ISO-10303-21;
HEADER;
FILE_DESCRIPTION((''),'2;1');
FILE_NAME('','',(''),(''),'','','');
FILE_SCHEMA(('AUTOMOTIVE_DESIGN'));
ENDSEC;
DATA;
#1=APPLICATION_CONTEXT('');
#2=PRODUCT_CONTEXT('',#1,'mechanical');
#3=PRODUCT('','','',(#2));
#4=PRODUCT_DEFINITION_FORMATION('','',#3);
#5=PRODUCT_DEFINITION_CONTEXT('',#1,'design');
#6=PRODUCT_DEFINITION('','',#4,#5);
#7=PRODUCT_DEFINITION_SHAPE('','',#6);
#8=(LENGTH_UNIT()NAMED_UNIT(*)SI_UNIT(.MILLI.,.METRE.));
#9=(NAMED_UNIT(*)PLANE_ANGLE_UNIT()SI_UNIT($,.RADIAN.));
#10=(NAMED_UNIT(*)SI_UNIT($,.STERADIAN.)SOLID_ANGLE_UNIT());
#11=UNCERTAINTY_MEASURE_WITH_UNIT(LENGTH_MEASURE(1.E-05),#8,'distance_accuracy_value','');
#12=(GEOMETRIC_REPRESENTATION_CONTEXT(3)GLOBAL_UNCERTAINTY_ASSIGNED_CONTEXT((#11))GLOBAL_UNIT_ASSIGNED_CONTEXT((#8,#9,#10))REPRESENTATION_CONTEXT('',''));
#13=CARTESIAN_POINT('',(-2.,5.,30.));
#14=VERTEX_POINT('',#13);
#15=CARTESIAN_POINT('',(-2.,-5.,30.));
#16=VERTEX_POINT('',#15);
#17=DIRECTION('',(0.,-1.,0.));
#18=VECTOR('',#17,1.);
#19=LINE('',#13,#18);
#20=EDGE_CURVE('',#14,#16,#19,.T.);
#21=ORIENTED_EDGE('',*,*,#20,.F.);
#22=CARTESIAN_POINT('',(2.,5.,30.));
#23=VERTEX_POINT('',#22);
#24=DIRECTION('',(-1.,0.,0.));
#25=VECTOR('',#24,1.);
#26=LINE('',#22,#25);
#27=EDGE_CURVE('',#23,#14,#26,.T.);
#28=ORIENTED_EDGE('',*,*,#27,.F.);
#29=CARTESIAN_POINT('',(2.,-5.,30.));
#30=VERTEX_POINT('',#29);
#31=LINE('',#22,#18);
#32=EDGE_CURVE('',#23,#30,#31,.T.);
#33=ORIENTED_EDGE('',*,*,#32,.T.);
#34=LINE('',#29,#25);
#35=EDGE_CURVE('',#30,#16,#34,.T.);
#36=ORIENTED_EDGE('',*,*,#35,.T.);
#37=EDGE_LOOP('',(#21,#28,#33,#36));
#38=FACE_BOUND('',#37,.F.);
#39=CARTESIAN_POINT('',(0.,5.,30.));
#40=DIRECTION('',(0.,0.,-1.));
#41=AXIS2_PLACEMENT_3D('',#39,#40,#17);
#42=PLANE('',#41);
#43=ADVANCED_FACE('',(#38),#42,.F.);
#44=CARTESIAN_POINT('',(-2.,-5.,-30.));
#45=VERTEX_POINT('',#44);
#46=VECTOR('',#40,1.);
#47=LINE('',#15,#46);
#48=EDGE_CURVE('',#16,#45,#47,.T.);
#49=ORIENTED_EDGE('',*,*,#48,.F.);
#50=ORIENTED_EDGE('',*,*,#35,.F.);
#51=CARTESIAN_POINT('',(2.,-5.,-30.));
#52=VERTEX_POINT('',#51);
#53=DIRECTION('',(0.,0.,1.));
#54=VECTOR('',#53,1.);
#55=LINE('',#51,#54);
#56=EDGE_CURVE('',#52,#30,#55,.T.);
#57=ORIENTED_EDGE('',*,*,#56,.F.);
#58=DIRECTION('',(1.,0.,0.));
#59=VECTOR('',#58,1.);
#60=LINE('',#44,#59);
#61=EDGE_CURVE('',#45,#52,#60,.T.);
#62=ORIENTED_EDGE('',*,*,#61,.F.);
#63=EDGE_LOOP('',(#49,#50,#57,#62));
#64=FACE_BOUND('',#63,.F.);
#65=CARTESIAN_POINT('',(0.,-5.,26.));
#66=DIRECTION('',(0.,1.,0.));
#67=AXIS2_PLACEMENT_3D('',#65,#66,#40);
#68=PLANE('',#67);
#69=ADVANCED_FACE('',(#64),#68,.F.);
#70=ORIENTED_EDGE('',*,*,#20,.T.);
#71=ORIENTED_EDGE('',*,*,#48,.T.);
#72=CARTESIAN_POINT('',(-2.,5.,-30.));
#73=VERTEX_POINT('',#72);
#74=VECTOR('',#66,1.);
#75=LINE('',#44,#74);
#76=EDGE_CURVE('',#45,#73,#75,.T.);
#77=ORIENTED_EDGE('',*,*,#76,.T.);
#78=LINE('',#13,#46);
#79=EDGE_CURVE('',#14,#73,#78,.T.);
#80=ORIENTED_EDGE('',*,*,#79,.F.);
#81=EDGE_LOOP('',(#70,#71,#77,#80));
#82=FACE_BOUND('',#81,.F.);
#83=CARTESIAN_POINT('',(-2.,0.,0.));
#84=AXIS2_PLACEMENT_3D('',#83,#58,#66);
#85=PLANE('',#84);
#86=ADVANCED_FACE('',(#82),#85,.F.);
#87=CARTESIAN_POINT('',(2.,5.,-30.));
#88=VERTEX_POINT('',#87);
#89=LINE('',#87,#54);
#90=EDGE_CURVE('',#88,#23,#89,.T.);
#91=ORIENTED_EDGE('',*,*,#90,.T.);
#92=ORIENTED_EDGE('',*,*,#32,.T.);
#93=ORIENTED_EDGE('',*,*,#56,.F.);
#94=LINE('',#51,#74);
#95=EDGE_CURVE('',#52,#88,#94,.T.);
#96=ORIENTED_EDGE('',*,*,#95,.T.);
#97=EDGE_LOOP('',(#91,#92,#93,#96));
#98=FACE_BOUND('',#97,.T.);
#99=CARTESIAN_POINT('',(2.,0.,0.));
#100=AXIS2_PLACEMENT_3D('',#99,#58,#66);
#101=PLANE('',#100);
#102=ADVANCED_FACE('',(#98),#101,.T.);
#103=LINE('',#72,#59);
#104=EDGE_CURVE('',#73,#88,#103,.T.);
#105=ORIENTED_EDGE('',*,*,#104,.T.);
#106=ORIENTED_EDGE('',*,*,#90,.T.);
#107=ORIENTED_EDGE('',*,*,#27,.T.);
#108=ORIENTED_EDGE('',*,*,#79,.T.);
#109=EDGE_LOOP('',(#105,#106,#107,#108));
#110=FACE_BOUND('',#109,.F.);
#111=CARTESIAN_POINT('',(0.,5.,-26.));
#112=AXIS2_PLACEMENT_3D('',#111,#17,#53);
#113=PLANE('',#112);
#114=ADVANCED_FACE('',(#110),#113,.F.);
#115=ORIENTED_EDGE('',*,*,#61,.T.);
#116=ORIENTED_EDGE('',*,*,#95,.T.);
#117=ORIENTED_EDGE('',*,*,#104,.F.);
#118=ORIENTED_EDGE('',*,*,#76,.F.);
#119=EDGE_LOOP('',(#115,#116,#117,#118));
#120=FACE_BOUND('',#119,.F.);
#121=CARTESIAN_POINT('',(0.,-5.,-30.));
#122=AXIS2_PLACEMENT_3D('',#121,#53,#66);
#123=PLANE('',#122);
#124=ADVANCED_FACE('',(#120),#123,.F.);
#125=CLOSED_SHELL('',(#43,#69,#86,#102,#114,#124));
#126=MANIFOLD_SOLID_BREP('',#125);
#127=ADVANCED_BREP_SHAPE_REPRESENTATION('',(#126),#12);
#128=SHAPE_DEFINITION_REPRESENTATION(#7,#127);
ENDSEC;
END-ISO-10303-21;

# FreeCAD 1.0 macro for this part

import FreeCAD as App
import Part
import Sketcher
from FreeCAD import Vector
Q = App.Units.Quantity


def add_polygon(sketch, points):
    """Adds a closed chain of lines whose ends are joined by coincident constraints."""
    first, n = sketch.GeometryCount, len(points)
    for a, b in zip(points, points[1:] + points[:1]):
        sketch.addGeometry(Part.LineSegment(App.Vector(*a, 0), App.Vector(*b, 0)), False)
    for i in range(n):
        sketch.addConstraint(Sketcher.Constraint("Coincident", first + i, 2, first + (i + 1) % n, 1))

doc = App.newDocument("Part")
body = doc.addObject("PartDesign::Body", "Body")

# Sketch on YZ plane
sketch1 = body.newObject("Sketcher::SketchObject", "Sketch")
sketch1.AttachmentSupport = (doc.getObject("YZ_Plane"), [""])
sketch1.MapMode = "FlatFace"
add_polygon(sketch1, [(-5, -30), (5, -30), (5, 30), (-5, 30)])  # lines 0-3
sketch1.addConstraint(Sketcher.Constraint("Horizontal", 0))
sketch1.addConstraint(Sketcher.Constraint("Vertical", 1))
sketch1.addConstraint(Sketcher.Constraint("Horizontal", 2))
sketch1.addConstraint(Sketcher.Constraint("Vertical", 3))
sketch1.addConstraint(Sketcher.Constraint("Symmetric", 0, 2, 2, 2, -1, 1))
sketch1.addConstraint(Sketcher.Constraint("DistanceX", 0, 1, 0, 2, Q("10 mm")))
sketch1.addConstraint(Sketcher.Constraint("DistanceY", 1, 1, 1, 2, Q("60 mm")))
pad1 = body.newObject("PartDesign::Pad", "Pad")
pad1.Profile = sketch1
pad1.Length = 4
pad1.Midplane = True

doc.recompute()
